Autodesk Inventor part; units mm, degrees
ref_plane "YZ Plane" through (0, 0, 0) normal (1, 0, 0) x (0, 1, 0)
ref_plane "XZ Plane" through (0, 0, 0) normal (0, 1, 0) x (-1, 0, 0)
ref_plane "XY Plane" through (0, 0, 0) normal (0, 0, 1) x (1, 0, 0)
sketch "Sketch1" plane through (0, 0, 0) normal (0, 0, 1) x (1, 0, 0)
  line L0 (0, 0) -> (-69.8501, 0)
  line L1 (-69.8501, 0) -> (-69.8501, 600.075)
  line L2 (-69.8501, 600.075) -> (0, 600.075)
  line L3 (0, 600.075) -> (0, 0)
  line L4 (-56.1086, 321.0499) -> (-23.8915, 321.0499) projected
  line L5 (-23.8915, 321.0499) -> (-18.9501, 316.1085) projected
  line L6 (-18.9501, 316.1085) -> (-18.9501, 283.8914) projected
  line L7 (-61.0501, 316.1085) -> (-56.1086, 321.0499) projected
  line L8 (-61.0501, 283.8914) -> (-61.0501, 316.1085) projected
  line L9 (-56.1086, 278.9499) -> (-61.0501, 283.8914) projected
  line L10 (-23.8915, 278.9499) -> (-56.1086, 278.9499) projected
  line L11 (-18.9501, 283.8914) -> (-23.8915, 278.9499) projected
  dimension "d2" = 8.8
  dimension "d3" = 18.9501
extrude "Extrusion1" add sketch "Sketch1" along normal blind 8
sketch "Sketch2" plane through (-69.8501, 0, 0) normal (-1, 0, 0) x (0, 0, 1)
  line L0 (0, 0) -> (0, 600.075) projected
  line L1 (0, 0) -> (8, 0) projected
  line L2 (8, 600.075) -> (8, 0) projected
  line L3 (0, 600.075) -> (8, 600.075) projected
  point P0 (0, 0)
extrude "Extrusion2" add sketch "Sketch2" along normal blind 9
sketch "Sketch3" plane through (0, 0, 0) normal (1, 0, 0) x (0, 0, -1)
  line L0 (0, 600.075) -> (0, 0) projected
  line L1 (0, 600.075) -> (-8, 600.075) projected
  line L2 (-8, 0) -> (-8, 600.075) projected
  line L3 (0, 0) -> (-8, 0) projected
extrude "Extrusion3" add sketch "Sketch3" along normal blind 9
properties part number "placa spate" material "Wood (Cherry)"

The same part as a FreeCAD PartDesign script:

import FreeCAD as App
import Part
import Sketcher
Q = App.Units.Quantity

doc = App.newDocument("Part")
params = doc.addObject("Spreadsheet::Sheet", "Params")
for row, (alias, value) in enumerate([
    ("sketch1_width", "69.85 mm"),
    ("pad1_length", "8 mm"),
    ("sketch2_height", "8 mm"),
    ("pad2_length", "9 mm"),
    ("sketch3_height", "8 mm"),
    ("pad3_length", "9 mm"),
], start=1):
    params.set(f"A{row}", alias)
    params.set(f"B{row}", "=" + value)
    params.setAlias(f"B{row}", alias)

body = doc.addObject("PartDesign::Body", "Body")

# Sketch on XY plane
sketch1 = doc.addObject("Sketcher::SketchObject", "Sketch")
body.addObject(sketch1)
sketch1.AttachmentSupport = (doc.XY_Plane, [""])
sketch1.MapMode = "FlatFace"
sketch1.addGeometry(Part.LineSegment(App.Vector(-70, 0, 0), App.Vector(0, 0, 0)), False)
sketch1.addGeometry(Part.LineSegment(App.Vector(0, 0, 0), App.Vector(0, 600, 0)), False)
sketch1.addGeometry(Part.LineSegment(App.Vector(0, 600, 0), App.Vector(-70, 600, 0)), False)
sketch1.addGeometry(Part.LineSegment(App.Vector(-70, 600, 0), App.Vector(-70, 0, 0)), False)
sketch1.addGeometry(Part.LineSegment(App.Vector(-61, 316, 0), App.Vector(-56, 321, 0)), False)
sketch1.addGeometry(Part.LineSegment(App.Vector(-56, 321, 0), App.Vector(-24, 321, 0)), False)
sketch1.addGeometry(Part.LineSegment(App.Vector(-24, 321, 0), App.Vector(-19, 316, 0)), False)
sketch1.addGeometry(Part.LineSegment(App.Vector(-19, 316, 0), App.Vector(-19, 284, 0)), False)
sketch1.addGeometry(Part.LineSegment(App.Vector(-19, 284, 0), App.Vector(-24, 279, 0)), False)
sketch1.addGeometry(Part.LineSegment(App.Vector(-24, 279, 0), App.Vector(-56, 279, 0)), False)
sketch1.addGeometry(Part.LineSegment(App.Vector(-56, 279, 0), App.Vector(-61, 284, 0)), False)
sketch1.addGeometry(Part.LineSegment(App.Vector(-61, 284, 0), App.Vector(-61, 316, 0)), False)
sketch1.addConstraint(Sketcher.Constraint("Coincident", 0, 2, 1, 1))
sketch1.addConstraint(Sketcher.Constraint("Coincident", 1, 2, 2, 1))
sketch1.addConstraint(Sketcher.Constraint("Coincident", 2, 2, 3, 1))
sketch1.addConstraint(Sketcher.Constraint("Coincident", 3, 2, 0, 1))
sketch1.addConstraint(Sketcher.Constraint("Coincident", 4, 2, 5, 1))
sketch1.addConstraint(Sketcher.Constraint("Coincident", 5, 2, 6, 1))
sketch1.addConstraint(Sketcher.Constraint("Coincident", 6, 2, 7, 1))
sketch1.addConstraint(Sketcher.Constraint("Coincident", 7, 2, 8, 1))
sketch1.addConstraint(Sketcher.Constraint("Coincident", 8, 2, 9, 1))
sketch1.addConstraint(Sketcher.Constraint("Coincident", 9, 2, 10, 1))
sketch1.addConstraint(Sketcher.Constraint("Coincident", 10, 2, 11, 1))
sketch1.addConstraint(Sketcher.Constraint("Coincident", 11, 2, 4, 1))
sketch1.addConstraint(Sketcher.Constraint("Horizontal", 0))
sketch1.addConstraint(Sketcher.Constraint("Vertical", 1))
sketch1.addConstraint(Sketcher.Constraint("Horizontal", 2))
sketch1.addConstraint(Sketcher.Constraint("Vertical", 3))
sketch1.addConstraint(Sketcher.Constraint("Horizontal", 5))
sketch1.addConstraint(Sketcher.Constraint("Vertical", 7))
sketch1.addConstraint(Sketcher.Constraint("Horizontal", 9))
sketch1.addConstraint(Sketcher.Constraint("Vertical", 11))
sketch1.addConstraint(Sketcher.Constraint("Coincident", 0, 2, -1, 1))
sketch1.addConstraint(Sketcher.Constraint("Perpendicular", 4, 6))
sketch1.addConstraint(Sketcher.Constraint("Perpendicular", 6, 8))
sketch1.addConstraint(Sketcher.Constraint("Perpendicular", 8, 10))
sketch1.addConstraint(Sketcher.Constraint("Horizontal", 7, 2, 10, 2))
sketch1.addConstraint(Sketcher.Constraint("Horizontal", 6, 2, 11, 2))
sketch1.addConstraint(Sketcher.Constraint("Vertical", 5, 2, 8, 2))
sketch1.addConstraint(Sketcher.Constraint("Vertical", 4, 2, 9, 2))
sketch1.addConstraint(Sketcher.Constraint("Equal", 9, 7))
sketch1.addConstraint(Sketcher.Constraint("DistanceX", 6, 2, -1, 1, Q("18.95 mm")))
sketch1.addConstraint(Sketcher.Constraint("DistanceX", 0, 1, 0, 2, Q("69.85 mm")))
sketch1.addConstraint(Sketcher.Constraint("DistanceY", 8, 2, 5, 2, Q("42.1 mm")))
sketch1.addConstraint(Sketcher.Constraint("DistanceX", 5, 1, 5, 2, Q("32.217 mm")))
sketch1.addConstraint(Sketcher.Constraint("DistanceY", 1, 1, 1, 2, Q("600.075 mm")))
sketch1.addConstraint(Sketcher.Constraint("DistanceY", -1, 1, 4, 2, Q("321.05 mm")))
sketch1.setExpression("Constraints[30]", "Params.sketch1_width")
pad1 = doc.addObject("PartDesign::Pad", "Pad")
body.addObject(pad1)
pad1.Profile = sketch1
pad1.setExpression("Length", "Params.pad1_length")

# Sketch on YZ plane
sketch2 = doc.addObject("Sketcher::SketchObject", "Sketch001")
body.addObject(sketch2)
sketch2.AttachmentSupport = (doc.YZ_Plane, [""])
sketch2.MapMode = "FlatFace"
sketch2.AttachmentOffset = App.Placement(App.Vector(0, 0, -69.8501), App.Rotation())
sketch2.addGeometry(Part.LineSegment(App.Vector(600, 0, 0), App.Vector(0, 0, 0)), False)
sketch2.addGeometry(Part.LineSegment(App.Vector(0, 0, 0), App.Vector(0, 8, 0)), False)
sketch2.addGeometry(Part.LineSegment(App.Vector(0, 8, 0), App.Vector(600, 8, 0)), False)
sketch2.addGeometry(Part.LineSegment(App.Vector(600, 8, 0), App.Vector(600, 0, 0)), False)
sketch2.addConstraint(Sketcher.Constraint("Coincident", 0, 2, 1, 1))
sketch2.addConstraint(Sketcher.Constraint("Coincident", 1, 2, 2, 1))
sketch2.addConstraint(Sketcher.Constraint("Coincident", 2, 2, 3, 1))
sketch2.addConstraint(Sketcher.Constraint("Coincident", 3, 2, 0, 1))
sketch2.addConstraint(Sketcher.Constraint("Horizontal", 0))
sketch2.addConstraint(Sketcher.Constraint("Vertical", 1))
sketch2.addConstraint(Sketcher.Constraint("Horizontal", 2))
sketch2.addConstraint(Sketcher.Constraint("Vertical", 3))
sketch2.addConstraint(Sketcher.Constraint("Coincident", 0, 2, -1, 1))
sketch2.addConstraint(Sketcher.Constraint("DistanceY", 1, 1, 1, 2, Q("8 mm")))
sketch2.addConstraint(Sketcher.Constraint("DistanceX", 0, 2, 0, 1, Q("600.075 mm")))
sketch2.setExpression("Constraints[9]", "Params.sketch2_height")
pad2 = doc.addObject("PartDesign::Pad", "Pad001")
body.addObject(pad2)
pad2.Profile = sketch2
pad2.setExpression("Length", "Params.pad2_length")
pad2.Reversed = True

# Sketch on YZ plane
sketch3 = doc.addObject("Sketcher::SketchObject", "Sketch002")
body.addObject(sketch3)
sketch3.AttachmentSupport = (doc.YZ_Plane, [""])
sketch3.MapMode = "FlatFace"
sketch3.addGeometry(Part.LineSegment(App.Vector(0, 0, 0), App.Vector(600, 0, 0)), False)
sketch3.addGeometry(Part.LineSegment(App.Vector(600, 0, 0), App.Vector(600, 8, 0)), False)
sketch3.addGeometry(Part.LineSegment(App.Vector(600, 8, 0), App.Vector(0, 8, 0)), False)
sketch3.addGeometry(Part.LineSegment(App.Vector(0, 8, 0), App.Vector(0, 0, 0)), False)
sketch3.addConstraint(Sketcher.Constraint("Coincident", 0, 2, 1, 1))
sketch3.addConstraint(Sketcher.Constraint("Coincident", 1, 2, 2, 1))
sketch3.addConstraint(Sketcher.Constraint("Coincident", 2, 2, 3, 1))
sketch3.addConstraint(Sketcher.Constraint("Coincident", 3, 2, 0, 1))
sketch3.addConstraint(Sketcher.Constraint("Horizontal", 0))
sketch3.addConstraint(Sketcher.Constraint("Vertical", 1))
sketch3.addConstraint(Sketcher.Constraint("Horizontal", 2))
sketch3.addConstraint(Sketcher.Constraint("Vertical", 3))
sketch3.addConstraint(Sketcher.Constraint("Coincident", 3, 2, -1, 1))
sketch3.addConstraint(Sketcher.Constraint("DistanceY", 1, 1, 1, 2, Q("8 mm")))
sketch3.addConstraint(Sketcher.Constraint("DistanceX", 0, 1, 0, 2, Q("600.075 mm")))
sketch3.setExpression("Constraints[9]", "Params.sketch3_height")
pad3 = doc.addObject("PartDesign::Pad", "Pad002")
body.addObject(pad3)
pad3.Profile = sketch3
pad3.setExpression("Length", "Params.pad3_length")

doc.recompute()
